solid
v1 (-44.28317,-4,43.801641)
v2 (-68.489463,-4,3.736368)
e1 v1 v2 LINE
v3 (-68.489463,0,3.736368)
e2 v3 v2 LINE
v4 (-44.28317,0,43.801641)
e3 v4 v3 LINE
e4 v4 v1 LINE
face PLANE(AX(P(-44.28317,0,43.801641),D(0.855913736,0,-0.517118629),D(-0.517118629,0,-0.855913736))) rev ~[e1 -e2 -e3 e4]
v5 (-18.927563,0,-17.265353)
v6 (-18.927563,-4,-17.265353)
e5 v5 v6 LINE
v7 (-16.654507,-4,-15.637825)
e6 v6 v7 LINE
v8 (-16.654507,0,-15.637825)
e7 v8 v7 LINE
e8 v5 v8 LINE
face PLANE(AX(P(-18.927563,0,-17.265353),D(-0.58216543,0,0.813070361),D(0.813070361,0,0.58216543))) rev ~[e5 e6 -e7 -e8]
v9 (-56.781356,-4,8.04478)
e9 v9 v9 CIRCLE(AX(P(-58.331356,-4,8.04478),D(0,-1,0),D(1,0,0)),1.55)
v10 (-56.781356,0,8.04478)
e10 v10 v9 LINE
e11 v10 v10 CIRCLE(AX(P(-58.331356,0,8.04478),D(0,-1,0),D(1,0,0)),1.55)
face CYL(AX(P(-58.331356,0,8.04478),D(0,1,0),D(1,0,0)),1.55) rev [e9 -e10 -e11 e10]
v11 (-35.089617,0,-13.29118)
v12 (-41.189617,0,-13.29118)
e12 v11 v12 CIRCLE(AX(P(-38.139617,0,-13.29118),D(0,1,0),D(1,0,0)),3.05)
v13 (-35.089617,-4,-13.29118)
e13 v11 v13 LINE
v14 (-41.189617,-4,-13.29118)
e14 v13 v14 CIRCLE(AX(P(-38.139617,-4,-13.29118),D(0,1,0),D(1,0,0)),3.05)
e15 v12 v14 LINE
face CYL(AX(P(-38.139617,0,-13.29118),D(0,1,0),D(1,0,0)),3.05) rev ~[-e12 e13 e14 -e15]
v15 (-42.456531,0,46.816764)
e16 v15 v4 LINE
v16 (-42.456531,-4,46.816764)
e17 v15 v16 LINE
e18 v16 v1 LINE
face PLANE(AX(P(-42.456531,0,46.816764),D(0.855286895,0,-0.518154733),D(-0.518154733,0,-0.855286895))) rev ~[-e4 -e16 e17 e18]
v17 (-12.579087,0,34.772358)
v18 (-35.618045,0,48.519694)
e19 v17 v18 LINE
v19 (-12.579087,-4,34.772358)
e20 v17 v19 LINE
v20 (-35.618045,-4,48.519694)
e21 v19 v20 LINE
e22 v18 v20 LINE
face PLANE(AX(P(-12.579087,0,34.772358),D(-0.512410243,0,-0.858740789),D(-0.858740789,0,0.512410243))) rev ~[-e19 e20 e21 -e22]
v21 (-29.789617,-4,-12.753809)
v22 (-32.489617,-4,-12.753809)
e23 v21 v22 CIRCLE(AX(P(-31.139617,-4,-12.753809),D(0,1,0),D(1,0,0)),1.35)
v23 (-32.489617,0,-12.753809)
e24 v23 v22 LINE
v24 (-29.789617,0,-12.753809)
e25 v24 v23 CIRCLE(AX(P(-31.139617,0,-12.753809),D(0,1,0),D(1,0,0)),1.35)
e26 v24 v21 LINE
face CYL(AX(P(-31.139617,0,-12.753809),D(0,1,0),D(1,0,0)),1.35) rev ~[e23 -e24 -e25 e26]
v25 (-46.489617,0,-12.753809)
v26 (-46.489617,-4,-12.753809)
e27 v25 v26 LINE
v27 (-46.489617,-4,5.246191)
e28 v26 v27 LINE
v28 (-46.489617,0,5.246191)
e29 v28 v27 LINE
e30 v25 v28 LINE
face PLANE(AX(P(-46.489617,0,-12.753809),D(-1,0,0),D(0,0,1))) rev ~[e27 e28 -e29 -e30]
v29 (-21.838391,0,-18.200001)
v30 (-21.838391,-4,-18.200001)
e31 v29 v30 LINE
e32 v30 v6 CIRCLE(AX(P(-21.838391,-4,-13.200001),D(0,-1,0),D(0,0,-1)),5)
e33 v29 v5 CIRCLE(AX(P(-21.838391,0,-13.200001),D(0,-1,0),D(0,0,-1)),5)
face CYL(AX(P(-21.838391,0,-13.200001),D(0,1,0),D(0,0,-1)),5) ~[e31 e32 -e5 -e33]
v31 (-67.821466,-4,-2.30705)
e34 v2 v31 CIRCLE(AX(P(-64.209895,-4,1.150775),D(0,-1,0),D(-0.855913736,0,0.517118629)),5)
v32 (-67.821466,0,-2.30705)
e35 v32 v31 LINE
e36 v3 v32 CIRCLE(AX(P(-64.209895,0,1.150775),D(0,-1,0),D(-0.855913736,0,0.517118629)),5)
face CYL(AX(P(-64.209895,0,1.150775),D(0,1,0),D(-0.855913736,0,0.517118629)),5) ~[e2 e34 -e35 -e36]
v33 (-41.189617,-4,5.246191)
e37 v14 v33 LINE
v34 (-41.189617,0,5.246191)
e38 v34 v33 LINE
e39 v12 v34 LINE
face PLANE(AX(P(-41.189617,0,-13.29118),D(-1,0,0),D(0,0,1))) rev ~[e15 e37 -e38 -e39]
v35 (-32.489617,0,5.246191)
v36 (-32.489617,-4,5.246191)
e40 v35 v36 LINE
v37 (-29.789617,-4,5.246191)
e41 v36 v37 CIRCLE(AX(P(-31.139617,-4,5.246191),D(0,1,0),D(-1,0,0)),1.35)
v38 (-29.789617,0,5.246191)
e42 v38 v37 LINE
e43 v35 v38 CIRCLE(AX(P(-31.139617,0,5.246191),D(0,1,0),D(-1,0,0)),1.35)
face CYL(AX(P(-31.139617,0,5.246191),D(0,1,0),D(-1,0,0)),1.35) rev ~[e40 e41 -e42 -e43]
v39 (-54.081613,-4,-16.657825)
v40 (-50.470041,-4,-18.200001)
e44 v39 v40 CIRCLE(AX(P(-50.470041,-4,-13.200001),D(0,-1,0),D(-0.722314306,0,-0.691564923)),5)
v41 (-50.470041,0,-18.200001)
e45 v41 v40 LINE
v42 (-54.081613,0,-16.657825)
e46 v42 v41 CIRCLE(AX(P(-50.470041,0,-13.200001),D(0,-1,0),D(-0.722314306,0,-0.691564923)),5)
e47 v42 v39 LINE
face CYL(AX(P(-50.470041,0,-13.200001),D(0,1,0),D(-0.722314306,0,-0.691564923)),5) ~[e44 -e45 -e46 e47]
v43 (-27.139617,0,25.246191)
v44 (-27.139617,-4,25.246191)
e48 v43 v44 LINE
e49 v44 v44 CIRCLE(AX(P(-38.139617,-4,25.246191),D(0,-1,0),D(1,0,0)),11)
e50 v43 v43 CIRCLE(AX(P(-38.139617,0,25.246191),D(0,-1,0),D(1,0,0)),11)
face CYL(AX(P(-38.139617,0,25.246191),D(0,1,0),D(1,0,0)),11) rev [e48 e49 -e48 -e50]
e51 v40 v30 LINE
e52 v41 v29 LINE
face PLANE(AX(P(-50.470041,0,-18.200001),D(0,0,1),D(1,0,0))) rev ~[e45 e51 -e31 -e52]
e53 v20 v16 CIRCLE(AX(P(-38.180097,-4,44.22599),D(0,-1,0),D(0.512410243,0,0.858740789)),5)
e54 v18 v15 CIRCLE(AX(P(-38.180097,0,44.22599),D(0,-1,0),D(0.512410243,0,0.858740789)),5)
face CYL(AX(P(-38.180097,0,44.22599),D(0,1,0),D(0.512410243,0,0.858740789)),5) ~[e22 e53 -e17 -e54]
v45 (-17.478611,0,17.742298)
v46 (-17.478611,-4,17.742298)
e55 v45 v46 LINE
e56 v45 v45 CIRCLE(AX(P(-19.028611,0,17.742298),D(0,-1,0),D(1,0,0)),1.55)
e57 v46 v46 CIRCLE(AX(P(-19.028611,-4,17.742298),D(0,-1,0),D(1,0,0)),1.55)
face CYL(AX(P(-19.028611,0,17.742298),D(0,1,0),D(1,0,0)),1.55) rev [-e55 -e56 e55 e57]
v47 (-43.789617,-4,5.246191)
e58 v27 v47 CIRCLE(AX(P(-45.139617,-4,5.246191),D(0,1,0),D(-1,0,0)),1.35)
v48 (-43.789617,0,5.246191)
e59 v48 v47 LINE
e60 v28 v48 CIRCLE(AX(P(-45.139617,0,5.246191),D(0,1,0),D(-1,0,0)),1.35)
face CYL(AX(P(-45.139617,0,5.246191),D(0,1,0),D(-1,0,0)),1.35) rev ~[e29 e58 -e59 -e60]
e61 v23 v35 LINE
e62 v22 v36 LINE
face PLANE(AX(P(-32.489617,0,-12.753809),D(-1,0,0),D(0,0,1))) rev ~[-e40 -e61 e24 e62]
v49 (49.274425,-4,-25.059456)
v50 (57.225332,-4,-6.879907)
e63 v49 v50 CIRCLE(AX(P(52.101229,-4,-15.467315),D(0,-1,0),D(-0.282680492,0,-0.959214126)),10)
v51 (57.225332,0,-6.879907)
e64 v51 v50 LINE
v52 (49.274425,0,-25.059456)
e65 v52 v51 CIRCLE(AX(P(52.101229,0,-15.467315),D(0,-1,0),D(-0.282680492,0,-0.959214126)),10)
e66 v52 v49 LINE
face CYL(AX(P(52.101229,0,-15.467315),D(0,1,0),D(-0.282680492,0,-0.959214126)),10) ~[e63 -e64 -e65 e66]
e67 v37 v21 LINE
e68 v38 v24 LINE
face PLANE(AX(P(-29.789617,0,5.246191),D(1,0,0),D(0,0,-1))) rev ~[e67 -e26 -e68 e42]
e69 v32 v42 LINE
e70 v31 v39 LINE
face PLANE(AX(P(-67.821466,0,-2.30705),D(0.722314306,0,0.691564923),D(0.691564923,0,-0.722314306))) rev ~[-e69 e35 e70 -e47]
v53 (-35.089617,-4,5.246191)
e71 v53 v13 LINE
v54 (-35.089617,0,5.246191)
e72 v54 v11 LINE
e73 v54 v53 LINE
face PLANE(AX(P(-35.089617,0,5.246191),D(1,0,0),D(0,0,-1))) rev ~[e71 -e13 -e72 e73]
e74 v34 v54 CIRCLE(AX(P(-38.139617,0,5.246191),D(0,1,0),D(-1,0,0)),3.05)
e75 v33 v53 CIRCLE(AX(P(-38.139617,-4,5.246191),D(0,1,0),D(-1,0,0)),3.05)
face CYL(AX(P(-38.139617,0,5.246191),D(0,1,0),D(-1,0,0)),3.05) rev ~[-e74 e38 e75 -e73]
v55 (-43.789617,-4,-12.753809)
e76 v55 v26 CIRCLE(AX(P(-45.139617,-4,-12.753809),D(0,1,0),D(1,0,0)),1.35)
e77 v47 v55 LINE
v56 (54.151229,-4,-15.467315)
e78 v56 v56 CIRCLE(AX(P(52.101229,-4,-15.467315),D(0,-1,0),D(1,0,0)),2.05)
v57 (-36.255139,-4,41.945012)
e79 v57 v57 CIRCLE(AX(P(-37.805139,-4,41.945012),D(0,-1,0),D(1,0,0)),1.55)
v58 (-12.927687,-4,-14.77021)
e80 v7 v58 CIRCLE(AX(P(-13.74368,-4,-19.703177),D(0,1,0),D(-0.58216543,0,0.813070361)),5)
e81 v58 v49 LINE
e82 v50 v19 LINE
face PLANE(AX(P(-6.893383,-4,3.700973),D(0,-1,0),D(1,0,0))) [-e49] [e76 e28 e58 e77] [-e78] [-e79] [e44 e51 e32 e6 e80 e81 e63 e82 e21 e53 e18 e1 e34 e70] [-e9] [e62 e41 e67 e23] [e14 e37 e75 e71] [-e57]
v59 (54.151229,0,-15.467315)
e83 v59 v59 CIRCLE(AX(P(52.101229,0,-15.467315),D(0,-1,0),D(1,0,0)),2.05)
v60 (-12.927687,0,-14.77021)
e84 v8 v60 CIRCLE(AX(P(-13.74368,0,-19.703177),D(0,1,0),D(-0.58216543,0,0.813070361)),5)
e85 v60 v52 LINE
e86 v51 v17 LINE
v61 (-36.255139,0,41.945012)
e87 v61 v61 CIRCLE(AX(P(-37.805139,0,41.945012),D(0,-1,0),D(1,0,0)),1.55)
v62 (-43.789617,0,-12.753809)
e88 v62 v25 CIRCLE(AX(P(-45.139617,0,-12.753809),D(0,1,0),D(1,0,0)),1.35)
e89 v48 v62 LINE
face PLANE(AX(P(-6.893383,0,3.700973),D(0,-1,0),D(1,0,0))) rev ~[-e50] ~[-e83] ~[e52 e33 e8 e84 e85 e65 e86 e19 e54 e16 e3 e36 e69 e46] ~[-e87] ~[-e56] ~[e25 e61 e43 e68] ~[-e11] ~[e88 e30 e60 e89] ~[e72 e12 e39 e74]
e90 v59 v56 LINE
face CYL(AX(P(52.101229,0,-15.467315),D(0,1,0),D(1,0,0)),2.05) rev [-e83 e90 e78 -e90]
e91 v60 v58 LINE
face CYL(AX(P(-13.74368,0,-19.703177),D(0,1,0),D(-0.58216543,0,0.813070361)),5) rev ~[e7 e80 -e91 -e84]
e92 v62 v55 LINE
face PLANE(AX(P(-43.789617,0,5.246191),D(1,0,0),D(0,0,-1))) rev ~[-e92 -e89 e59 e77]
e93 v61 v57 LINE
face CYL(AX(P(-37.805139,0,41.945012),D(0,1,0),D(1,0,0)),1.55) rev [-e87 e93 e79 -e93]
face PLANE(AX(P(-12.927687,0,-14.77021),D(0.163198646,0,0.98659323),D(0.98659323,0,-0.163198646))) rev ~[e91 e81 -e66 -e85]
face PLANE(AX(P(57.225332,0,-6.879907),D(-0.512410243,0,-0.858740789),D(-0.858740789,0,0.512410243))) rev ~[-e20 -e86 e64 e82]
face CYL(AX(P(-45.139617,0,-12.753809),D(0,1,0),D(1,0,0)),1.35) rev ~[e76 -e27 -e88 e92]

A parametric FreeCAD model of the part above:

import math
import FreeCAD as App
import Part
import Sketcher

V = App.Vector
Q = App.Units.Quantity

doc = App.newDocument("Part")
body = doc.addObject("PartDesign::Body", "Body")

# Sketch on XZ plane
sketch1 = doc.addObject("Sketcher::SketchObject", "Sketch")
body.addObject(sketch1)
sketch1.AttachmentSupport = (doc.XZ_Plane, [""])
sketch1.MapMode = "FlatFace"
sketch1.addGeometry([
    Part.LineSegment(V(-12.9, -14.8, 0), V(49.3, -25.1, 0)),  # 0
    Part.ArcOfCircle(Part.Circle(V(52.1, -15.5, 0), V(0, 0, 1), 10), math.radians(-106), math.radians(59)),  # 1
    Part.LineSegment(V(57.2, -6.9, 0), V(-12.6, 34.8, 0)),  # 2
    Part.LineSegment(V(-12.6, 34.8, 0), V(-35.6, 48.5, 0)),  # 3
    Part.ArcOfCircle(Part.Circle(V(-38.2, 44.2, 0), V(0, 0, 1), 5), math.radians(59), math.radians(149)),  # 4
    Part.LineSegment(V(-42.5, 46.8, 0), V(-44.3, 43.8, 0)),  # 5
    Part.LineSegment(V(-44.3, 43.8, 0), V(-68.5, 3.7, 0)),  # 6
    Part.ArcOfCircle(Part.Circle(V(-64.2, 1.2, 0), V(0, 0, 1), 5), math.radians(149), math.radians(224)),  # 7
    Part.LineSegment(V(-67.8, -2.3, 0), V(-54.1, -16.7, 0)),  # 8
    Part.ArcOfCircle(Part.Circle(V(-50.5, -13.2, 0), V(0, 0, 1), 5), math.radians(-136), math.radians(-90)),  # 9
    Part.LineSegment(V(-50.5, -18.2, 0), V(-21.8, -18.2, 0)),  # 10
    Part.ArcOfCircle(Part.Circle(V(-21.8, -13.2, 0), V(0, 0, 1), 5), math.radians(-90), math.radians(-54)),  # 11
    Part.LineSegment(V(-18.9, -17.3, 0), V(-16.7, -15.6, 0)),  # 12
    Part.ArcOfCircle(Part.Circle(V(-13.7, -19.7, 0), V(0, 0, 1), 5), math.radians(81), math.radians(126)),  # 13
    Part.LineSegment(V(-46.5, -12.8, 0), V(-46.5, 5.2, 0)),  # 14
    Part.ArcOfCircle(Part.Circle(V(-45.1, 5.2, 0), V(0, 0, 1), 1.4), math.radians(0), math.radians(180)),  # 15
    Part.LineSegment(V(-43.8, 5.2, 0), V(-43.8, -12.8, 0)),  # 16
    Part.ArcOfCircle(Part.Circle(V(-45.1, -12.8, 0), V(0, 0, 1), 1.4), math.radians(180), math.radians(360)),  # 17
    Part.ArcOfCircle(Part.Circle(V(-38.1, -13.3, 0), V(0, 0, 1), 3), math.radians(180), math.radians(360)),  # 18
    Part.LineSegment(V(-41.2, -13.3, 0), V(-41.2, 5.2, 0)),  # 19
    Part.ArcOfCircle(Part.Circle(V(-38.1, 5.2, 0), V(0, 0, 1), 3), math.radians(0), math.radians(180)),  # 20
    Part.LineSegment(V(-35.1, 5.2, 0), V(-35.1, -13.3, 0)),  # 21
    Part.ArcOfCircle(Part.Circle(V(-31.1, -12.8, 0), V(0, 0, 1), 1.4), math.radians(180), math.radians(360)),  # 22
    Part.LineSegment(V(-32.5, -12.8, 0), V(-32.5, 5.2, 0)),  # 23
    Part.ArcOfCircle(Part.Circle(V(-31.1, 5.2, 0), V(0, 0, 1), 1.4), math.radians(0), math.radians(180)),  # 24
    Part.LineSegment(V(-29.8, 5.2, 0), V(-29.8, -12.8, 0)),  # 25
    Part.Circle(V(-58.3, 8, 0), V(0, 0, 1), 1.6),  # 26
    Part.Circle(V(52.1, -15.5, 0), V(0, 0, 1), 2),  # 27
    Part.Circle(V(-38.1, 25.2, 0), V(0, 0, 1), 11),  # 28
    Part.Circle(V(-19, 17.7, 0), V(0, 0, 1), 1.6),  # 29
    Part.Circle(V(-37.8, 41.9, 0), V(0, 0, 1), 1.6),  # 30
], False)
sketch1.addConstraint([
    Sketcher.Constraint("Coincident", 0, 2, 1, 1),
    Sketcher.Constraint("Tangent", 1, 2, 2, 1),
    Sketcher.Constraint("Coincident", 2, 2, 3, 1),
    Sketcher.Constraint("Tangent", 3, 2, 4, 1),
    Sketcher.Constraint("Tangent", 4, 2, 5, 1),
    Sketcher.Constraint("Coincident", 5, 2, 6, 1),
    Sketcher.Constraint("Tangent", 6, 2, 7, 1),
    Sketcher.Constraint("Tangent", 7, 2, 8, 1),
    Sketcher.Constraint("Tangent", 8, 2, 9, 1),
    Sketcher.Constraint("Tangent", 9, 2, 10, 1),
    Sketcher.Constraint("Tangent", 10, 2, 11, 1),
    Sketcher.Constraint("Tangent", 11, 2, 12, 1),
    Sketcher.Constraint("Tangent", 12, 2, 13, 2),
    Sketcher.Constraint("Tangent", 13, 1, 0, 1),
    Sketcher.Constraint("Tangent", 14, 2, 15, 2),
    Sketcher.Constraint("Tangent", 15, 1, 16, 1),
    Sketcher.Constraint("Tangent", 16, 2, 17, 2),
    Sketcher.Constraint("Tangent", 17, 1, 14, 1),
    Sketcher.Constraint("Tangent", 18, 1, 19, 1),
    Sketcher.Constraint("Tangent", 19, 2, 20, 2),
    Sketcher.Constraint("Tangent", 20, 1, 21, 1),
    Sketcher.Constraint("Tangent", 21, 2, 18, 2),
    Sketcher.Constraint("Tangent", 22, 1, 23, 1),
    Sketcher.Constraint("Tangent", 23, 2, 24, 2),
    Sketcher.Constraint("Tangent", 24, 1, 25, 1),
    Sketcher.Constraint("Tangent", 25, 2, 22, 2),
    Sketcher.Constraint("Horizontal", 10),
    Sketcher.Constraint("Vertical", 14),
    Sketcher.Constraint("Vertical", 16),
    Sketcher.Constraint("Vertical", 19),
    Sketcher.Constraint("Vertical", 21),
    Sketcher.Constraint("Vertical", 23),
    Sketcher.Constraint("Vertical", 25),
    Sketcher.Constraint("Coincident", 27, 3, 1, 3),
    Sketcher.Constraint("Equal", 4, 7),
    Sketcher.Constraint("Equal", 7, 9),
    Sketcher.Constraint("Equal", 9, 11),
    Sketcher.Constraint("Equal", 11, 13),
    Sketcher.Constraint("Equal", 17, 22),
    Sketcher.Constraint("Equal", 26, 29),
    Sketcher.Constraint("Equal", 29, 30),
    Sketcher.Constraint("Parallel", 2, 3),
    Sketcher.Constraint("Horizontal", 15, 3, 20, 3),
    Sketcher.Constraint("Horizontal", 17, 3, 22, 3),
    Sketcher.Constraint("Horizontal", 20, 3, 24, 3),
    Sketcher.Constraint("Vertical", 20, 3, 28, 3),
    Sketcher.Constraint("Diameter", 28, Q("22 mm")),
    Sketcher.Constraint("Radius", 1, Q("10 mm")),
    Sketcher.Constraint("Radius", 4, Q("5 mm")),
    Sketcher.Constraint("Diameter", 26, Q("3.1 mm")),
    Sketcher.Constraint("Diameter", 27, Q("4.1 mm")),
    Sketcher.Constraint("DistanceY", 14, 1, 14, 2, Q("18 mm")),
    Sketcher.Constraint("Radius", 15, Q("1.35 mm")),
    Sketcher.Constraint("Radius", 18, Q("3.05 mm")),
    Sketcher.Constraint("DistanceX", 17, 3, 18, 3, Q("7 mm")),
    Sketcher.Constraint("DistanceX", 18, 3, 22, 3, Q("7 mm")),
    Sketcher.Constraint("DistanceY", 20, 3, 28, 3, Q("20 mm")),
    Sketcher.Constraint("DistanceY", 9, 3, -1, 1, Q("13.200001 mm")),
    Sketcher.Constraint("DistanceX", 10, 1, 10, 2, Q("28.631651 mm")),
    Sketcher.Constraint("DistanceY", 19, 1, 19, 2, Q("18.537371 mm")),
    Sketcher.Constraint("DistanceY", -1, 1, 29, 3, Q("17.742298 mm")),
    Sketcher.Constraint("DistanceX", 7, 3, 4, 3, Q("26.029798 mm")),
    Sketcher.Constraint("DistanceY", 15, 3, 4, 3, Q("38.979799 mm")),
    Sketcher.Constraint("DistanceY", 8, 2, 7, 3, Q("17.8086 mm")),
    Sketcher.Constraint("Distance", 2, Q("81.28695 mm")),
    Sketcher.Constraint("Distance", 3, Q("26.828769 mm")),
    Sketcher.Constraint("Distance", 8, Q("19.867771 mm")),
    Sketcher.Constraint("DistanceX", -1, 1, 1, 3, Q("52.101229 mm")),
    Sketcher.Constraint("DistanceY", -1, 1, 4, 3, Q("44.22599 mm")),
    Sketcher.Constraint("DistanceX", 9, 3, -1, 1, Q("50.470041 mm")),
    Sketcher.Constraint("DistanceX", 13, 3, -1, 1, Q("13.74368 mm")),
    Sketcher.Constraint("DistanceY", -1, 1, 26, 3, Q("8.04478 mm")),
    Sketcher.Constraint("DistanceX", 29, 3, -1, 1, Q("19.028611 mm")),
    Sketcher.Constraint("DistanceX", 30, 3, -1, 1, Q("37.805139 mm")),
    Sketcher.Constraint("DistanceX", 4, 2, -1, 1, Q("42.456531 mm")),
    Sketcher.Constraint("DistanceX", 5, 2, -1, 1, Q("44.28317 mm")),
    Sketcher.Constraint("DistanceY", 13, 1, -1, 1, Q("14.77021 mm")),
    Sketcher.Constraint("DistanceX", 15, 3, 4, 3, Q("6.959521 mm")),
    Sketcher.Constraint("DistanceX", 7, 3, 26, 3, Q("5.878539 mm")),
    Sketcher.Constraint("DistanceY", 30, 3, 4, 3, Q("2.280978 mm")),
    Sketcher.Constraint("DistanceY", 0, 2, 1, 3, Q("9.592141 mm")),
])
pad1 = doc.addObject("PartDesign::Pad", "Pad")
body.addObject(pad1)
pad1.Profile = sketch1
pad1.Length = 4

doc.recompute()
